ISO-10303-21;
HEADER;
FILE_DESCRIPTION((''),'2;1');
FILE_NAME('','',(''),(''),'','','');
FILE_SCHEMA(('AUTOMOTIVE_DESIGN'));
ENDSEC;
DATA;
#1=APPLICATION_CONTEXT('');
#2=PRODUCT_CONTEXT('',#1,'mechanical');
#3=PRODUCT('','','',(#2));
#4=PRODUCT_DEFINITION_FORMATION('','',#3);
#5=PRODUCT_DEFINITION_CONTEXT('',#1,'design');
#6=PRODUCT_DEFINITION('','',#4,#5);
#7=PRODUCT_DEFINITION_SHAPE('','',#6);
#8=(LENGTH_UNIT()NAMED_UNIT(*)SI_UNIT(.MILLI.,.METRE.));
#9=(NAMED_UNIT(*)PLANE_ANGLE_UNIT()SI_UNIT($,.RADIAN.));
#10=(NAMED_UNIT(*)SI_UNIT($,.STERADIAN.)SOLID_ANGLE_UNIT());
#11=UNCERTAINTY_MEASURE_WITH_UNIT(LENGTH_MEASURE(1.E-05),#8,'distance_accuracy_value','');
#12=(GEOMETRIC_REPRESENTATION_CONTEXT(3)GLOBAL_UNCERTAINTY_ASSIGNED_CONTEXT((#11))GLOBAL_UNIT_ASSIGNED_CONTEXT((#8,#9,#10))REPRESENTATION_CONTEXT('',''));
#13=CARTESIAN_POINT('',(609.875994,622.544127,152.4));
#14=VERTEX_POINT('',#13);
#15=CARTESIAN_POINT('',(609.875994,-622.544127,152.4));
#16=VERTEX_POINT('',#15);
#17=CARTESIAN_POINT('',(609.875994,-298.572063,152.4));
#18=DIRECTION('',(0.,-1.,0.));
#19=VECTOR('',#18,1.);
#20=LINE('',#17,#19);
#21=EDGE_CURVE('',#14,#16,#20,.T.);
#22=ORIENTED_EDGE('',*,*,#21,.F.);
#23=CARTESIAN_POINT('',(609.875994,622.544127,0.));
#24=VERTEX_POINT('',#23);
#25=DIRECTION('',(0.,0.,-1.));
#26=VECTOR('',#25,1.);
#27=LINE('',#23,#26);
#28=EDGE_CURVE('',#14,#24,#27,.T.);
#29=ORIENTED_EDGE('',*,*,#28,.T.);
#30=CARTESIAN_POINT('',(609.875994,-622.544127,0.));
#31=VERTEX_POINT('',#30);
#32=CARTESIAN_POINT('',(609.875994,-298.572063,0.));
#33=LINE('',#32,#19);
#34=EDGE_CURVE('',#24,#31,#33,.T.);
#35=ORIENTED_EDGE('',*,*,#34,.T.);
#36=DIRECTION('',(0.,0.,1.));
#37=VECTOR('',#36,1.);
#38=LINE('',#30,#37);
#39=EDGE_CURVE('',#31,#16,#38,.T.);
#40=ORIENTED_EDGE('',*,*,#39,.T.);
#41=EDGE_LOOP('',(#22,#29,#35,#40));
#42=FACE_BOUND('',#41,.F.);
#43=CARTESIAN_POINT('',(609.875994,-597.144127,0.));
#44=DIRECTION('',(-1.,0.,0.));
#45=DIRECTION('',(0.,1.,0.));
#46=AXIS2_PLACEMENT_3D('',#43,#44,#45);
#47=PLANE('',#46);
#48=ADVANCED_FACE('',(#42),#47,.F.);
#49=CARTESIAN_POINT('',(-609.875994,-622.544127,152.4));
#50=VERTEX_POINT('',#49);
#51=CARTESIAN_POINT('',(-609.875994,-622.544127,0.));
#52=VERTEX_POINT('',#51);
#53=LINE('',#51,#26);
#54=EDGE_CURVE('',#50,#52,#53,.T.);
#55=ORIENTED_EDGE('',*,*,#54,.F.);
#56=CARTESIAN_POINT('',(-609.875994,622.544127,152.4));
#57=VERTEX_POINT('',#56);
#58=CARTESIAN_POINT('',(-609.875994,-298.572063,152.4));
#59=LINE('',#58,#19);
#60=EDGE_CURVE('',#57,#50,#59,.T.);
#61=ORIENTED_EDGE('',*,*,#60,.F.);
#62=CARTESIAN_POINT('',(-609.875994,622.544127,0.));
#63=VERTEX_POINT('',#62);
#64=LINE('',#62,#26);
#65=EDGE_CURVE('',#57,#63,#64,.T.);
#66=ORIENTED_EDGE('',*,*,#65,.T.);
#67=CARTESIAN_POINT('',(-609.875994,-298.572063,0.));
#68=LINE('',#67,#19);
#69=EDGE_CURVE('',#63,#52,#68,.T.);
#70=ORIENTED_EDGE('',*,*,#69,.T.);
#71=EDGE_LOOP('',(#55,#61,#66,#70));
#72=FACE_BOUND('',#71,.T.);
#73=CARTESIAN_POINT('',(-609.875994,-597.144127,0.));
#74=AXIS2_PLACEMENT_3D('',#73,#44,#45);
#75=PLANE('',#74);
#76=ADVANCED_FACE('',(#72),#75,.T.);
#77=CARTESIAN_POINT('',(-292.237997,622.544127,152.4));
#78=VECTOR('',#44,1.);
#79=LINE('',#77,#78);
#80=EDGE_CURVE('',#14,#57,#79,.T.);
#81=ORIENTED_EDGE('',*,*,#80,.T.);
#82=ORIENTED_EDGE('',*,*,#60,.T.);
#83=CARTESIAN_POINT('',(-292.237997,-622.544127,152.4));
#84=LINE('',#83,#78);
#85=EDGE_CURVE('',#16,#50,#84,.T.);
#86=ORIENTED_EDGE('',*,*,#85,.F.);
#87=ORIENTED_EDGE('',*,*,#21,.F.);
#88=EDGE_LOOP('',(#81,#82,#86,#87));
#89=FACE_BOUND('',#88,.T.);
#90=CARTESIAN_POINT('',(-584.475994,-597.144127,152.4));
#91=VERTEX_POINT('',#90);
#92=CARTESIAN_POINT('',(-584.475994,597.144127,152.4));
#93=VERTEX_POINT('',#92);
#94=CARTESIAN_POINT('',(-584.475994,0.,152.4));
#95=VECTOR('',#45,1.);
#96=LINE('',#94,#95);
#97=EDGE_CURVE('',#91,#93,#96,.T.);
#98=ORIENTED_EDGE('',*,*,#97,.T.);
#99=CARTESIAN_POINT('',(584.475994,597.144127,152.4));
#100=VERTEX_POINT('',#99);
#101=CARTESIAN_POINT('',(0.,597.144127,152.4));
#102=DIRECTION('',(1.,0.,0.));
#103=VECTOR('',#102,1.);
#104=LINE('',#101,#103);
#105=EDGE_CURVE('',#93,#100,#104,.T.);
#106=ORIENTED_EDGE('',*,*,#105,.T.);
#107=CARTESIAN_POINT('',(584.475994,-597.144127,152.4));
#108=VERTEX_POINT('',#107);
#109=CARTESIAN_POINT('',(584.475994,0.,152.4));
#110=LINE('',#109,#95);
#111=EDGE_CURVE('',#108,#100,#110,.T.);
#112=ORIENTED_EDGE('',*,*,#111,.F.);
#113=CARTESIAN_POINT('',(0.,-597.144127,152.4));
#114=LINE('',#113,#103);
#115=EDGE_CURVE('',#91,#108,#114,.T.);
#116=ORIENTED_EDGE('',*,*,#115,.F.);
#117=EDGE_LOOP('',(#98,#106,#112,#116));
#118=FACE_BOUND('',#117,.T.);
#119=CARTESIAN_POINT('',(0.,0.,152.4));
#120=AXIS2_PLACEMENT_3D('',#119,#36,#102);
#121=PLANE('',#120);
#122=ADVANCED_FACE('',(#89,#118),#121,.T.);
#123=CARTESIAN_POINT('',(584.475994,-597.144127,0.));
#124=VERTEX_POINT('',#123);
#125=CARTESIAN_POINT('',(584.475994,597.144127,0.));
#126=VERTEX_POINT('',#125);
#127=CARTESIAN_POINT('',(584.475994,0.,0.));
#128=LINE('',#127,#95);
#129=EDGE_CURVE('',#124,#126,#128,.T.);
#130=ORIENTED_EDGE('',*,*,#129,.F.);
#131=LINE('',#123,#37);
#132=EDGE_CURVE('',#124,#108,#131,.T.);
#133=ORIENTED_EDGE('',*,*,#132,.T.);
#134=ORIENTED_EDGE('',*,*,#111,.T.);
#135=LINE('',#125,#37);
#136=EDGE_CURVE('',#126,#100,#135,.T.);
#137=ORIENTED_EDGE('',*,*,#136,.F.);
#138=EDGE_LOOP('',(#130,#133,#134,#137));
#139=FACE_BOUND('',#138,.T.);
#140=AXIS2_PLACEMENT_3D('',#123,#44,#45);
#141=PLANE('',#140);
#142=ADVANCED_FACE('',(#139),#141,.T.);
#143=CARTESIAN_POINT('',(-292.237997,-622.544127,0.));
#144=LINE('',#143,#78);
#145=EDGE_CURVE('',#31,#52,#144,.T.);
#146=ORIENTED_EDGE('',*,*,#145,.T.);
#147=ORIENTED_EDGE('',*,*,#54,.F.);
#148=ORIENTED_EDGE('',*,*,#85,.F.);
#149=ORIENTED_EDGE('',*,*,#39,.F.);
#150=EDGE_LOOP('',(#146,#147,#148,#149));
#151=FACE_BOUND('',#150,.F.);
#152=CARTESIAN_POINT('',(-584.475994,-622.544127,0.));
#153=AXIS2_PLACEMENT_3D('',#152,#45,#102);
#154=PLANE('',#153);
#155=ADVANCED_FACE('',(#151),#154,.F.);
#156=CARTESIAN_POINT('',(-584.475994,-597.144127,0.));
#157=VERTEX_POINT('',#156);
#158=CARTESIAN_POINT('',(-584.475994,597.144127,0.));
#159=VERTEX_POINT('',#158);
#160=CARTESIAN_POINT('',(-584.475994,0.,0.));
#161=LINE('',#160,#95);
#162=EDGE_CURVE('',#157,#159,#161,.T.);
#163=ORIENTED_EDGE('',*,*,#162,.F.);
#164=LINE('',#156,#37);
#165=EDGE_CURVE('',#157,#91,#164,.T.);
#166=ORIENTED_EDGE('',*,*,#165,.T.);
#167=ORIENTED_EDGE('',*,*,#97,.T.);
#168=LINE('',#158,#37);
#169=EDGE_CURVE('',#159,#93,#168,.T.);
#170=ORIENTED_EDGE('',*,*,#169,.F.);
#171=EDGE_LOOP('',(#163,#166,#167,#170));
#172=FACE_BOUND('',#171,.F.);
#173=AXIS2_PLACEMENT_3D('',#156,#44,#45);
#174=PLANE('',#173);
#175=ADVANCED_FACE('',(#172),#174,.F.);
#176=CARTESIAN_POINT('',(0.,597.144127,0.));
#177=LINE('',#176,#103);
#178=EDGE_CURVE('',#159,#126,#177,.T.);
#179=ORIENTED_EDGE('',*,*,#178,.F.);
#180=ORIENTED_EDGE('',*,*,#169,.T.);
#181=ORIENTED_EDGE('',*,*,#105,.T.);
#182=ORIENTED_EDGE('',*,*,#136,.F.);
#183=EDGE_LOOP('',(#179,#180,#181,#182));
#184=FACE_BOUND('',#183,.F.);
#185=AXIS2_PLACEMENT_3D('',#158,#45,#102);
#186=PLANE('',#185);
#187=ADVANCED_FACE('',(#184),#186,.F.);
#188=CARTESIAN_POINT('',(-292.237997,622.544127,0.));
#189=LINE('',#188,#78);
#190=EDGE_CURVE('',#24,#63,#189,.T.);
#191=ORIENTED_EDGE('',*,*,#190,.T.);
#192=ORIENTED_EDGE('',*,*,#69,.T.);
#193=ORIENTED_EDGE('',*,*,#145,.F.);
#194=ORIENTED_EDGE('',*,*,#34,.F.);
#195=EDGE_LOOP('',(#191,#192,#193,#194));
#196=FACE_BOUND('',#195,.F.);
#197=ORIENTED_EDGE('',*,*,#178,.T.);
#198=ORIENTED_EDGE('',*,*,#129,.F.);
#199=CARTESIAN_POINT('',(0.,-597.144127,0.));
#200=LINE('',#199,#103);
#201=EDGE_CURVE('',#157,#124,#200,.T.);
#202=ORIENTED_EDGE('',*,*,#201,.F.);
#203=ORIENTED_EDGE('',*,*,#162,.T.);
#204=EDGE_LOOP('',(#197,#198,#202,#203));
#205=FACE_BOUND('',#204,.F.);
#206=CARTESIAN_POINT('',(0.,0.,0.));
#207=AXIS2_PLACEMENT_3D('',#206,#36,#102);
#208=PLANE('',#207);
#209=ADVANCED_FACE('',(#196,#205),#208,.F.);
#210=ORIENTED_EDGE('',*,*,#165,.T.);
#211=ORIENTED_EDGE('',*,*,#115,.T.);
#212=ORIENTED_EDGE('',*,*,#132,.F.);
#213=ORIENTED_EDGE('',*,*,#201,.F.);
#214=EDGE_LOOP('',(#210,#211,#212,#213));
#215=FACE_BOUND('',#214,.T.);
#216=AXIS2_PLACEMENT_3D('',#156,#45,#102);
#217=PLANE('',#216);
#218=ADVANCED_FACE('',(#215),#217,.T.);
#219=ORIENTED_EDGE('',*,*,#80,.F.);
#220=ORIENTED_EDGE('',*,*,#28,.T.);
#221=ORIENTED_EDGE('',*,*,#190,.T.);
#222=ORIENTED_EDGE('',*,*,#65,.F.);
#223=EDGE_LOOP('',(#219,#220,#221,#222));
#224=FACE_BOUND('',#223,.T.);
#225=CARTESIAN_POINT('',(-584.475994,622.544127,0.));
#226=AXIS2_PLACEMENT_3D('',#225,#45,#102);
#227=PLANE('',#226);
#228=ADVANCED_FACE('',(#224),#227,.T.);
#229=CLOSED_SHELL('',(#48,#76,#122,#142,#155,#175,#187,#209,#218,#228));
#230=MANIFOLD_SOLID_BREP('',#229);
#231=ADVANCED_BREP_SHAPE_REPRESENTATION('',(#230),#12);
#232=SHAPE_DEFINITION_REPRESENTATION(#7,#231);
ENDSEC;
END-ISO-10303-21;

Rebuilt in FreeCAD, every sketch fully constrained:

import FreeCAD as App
import Part
import Sketcher
from FreeCAD import Vector
Q = App.Units.Quantity


def faces_at(feature, points):
    """Names of the faces that lie closest to the given points."""
    faces = feature.Shape.Faces
    near = lambda p: min(range(len(faces)), key=lambda i: faces[i].distToShape(Part.Vertex(*p))[0])
    return sorted({f"Face{near(p) + 1}" for p in points})

doc = App.newDocument("Part")
body = doc.addObject("PartDesign::Body", "Body")

sketch1 = body.newObject("Sketcher::SketchObject", "Sketch")
sketch1.AttachmentSupport = (doc.getObject("XY_Plane"), [""])
sketch1.MapMode = "FlatFace"
sketch1.addGeometry([
    Part.LineSegment(Vector(-584, 597, 0), Vector(-584, -597, 0)),
    Part.LineSegment(Vector(-584, -597, 0), Vector(584, -597, 0)),
    Part.LineSegment(Vector(584, -597, 0), Vector(584, 597, 0)),
    Part.LineSegment(Vector(584, 597, 0), Vector(-584, 597, 0)),
], False)
sketch1.addConstraint([
    Sketcher.Constraint("Coincident", 0, 2, 1, 1),
    Sketcher.Constraint("Coincident", 1, 2, 2, 1),
    Sketcher.Constraint("Coincident", 2, 2, 3, 1),
    Sketcher.Constraint("Coincident", 3, 2, 0, 1),
    Sketcher.Constraint("Vertical", 0),
    Sketcher.Constraint("Horizontal", 1),
    Sketcher.Constraint("Vertical", 2),
    Sketcher.Constraint("Horizontal", 3),
    Sketcher.Constraint("Symmetric", 0, 2, 2, 2, -1, 1),
    Sketcher.Constraint("DistanceX", 1, 1, 1, 2, Q("1168.951988 mm")),
    Sketcher.Constraint("DistanceY", 0, 2, 0, 1, Q("1194.288254 mm")),
])
pad1 = body.newObject("PartDesign::Pad", "Pad")
pad1.Profile = sketch1
pad1.Length = Q("6 in")
doc.recompute()

thickness = body.newObject("PartDesign::Thickness", "Thickness")
thickness.Base = (pad1, faces_at(pad1, [(0, 0, 0), (0, 0, 152.4)]))
thickness.Value = Q("1 in")
thickness.Reversed = False
thickness.Join = "Intersection"

doc.recompute()
